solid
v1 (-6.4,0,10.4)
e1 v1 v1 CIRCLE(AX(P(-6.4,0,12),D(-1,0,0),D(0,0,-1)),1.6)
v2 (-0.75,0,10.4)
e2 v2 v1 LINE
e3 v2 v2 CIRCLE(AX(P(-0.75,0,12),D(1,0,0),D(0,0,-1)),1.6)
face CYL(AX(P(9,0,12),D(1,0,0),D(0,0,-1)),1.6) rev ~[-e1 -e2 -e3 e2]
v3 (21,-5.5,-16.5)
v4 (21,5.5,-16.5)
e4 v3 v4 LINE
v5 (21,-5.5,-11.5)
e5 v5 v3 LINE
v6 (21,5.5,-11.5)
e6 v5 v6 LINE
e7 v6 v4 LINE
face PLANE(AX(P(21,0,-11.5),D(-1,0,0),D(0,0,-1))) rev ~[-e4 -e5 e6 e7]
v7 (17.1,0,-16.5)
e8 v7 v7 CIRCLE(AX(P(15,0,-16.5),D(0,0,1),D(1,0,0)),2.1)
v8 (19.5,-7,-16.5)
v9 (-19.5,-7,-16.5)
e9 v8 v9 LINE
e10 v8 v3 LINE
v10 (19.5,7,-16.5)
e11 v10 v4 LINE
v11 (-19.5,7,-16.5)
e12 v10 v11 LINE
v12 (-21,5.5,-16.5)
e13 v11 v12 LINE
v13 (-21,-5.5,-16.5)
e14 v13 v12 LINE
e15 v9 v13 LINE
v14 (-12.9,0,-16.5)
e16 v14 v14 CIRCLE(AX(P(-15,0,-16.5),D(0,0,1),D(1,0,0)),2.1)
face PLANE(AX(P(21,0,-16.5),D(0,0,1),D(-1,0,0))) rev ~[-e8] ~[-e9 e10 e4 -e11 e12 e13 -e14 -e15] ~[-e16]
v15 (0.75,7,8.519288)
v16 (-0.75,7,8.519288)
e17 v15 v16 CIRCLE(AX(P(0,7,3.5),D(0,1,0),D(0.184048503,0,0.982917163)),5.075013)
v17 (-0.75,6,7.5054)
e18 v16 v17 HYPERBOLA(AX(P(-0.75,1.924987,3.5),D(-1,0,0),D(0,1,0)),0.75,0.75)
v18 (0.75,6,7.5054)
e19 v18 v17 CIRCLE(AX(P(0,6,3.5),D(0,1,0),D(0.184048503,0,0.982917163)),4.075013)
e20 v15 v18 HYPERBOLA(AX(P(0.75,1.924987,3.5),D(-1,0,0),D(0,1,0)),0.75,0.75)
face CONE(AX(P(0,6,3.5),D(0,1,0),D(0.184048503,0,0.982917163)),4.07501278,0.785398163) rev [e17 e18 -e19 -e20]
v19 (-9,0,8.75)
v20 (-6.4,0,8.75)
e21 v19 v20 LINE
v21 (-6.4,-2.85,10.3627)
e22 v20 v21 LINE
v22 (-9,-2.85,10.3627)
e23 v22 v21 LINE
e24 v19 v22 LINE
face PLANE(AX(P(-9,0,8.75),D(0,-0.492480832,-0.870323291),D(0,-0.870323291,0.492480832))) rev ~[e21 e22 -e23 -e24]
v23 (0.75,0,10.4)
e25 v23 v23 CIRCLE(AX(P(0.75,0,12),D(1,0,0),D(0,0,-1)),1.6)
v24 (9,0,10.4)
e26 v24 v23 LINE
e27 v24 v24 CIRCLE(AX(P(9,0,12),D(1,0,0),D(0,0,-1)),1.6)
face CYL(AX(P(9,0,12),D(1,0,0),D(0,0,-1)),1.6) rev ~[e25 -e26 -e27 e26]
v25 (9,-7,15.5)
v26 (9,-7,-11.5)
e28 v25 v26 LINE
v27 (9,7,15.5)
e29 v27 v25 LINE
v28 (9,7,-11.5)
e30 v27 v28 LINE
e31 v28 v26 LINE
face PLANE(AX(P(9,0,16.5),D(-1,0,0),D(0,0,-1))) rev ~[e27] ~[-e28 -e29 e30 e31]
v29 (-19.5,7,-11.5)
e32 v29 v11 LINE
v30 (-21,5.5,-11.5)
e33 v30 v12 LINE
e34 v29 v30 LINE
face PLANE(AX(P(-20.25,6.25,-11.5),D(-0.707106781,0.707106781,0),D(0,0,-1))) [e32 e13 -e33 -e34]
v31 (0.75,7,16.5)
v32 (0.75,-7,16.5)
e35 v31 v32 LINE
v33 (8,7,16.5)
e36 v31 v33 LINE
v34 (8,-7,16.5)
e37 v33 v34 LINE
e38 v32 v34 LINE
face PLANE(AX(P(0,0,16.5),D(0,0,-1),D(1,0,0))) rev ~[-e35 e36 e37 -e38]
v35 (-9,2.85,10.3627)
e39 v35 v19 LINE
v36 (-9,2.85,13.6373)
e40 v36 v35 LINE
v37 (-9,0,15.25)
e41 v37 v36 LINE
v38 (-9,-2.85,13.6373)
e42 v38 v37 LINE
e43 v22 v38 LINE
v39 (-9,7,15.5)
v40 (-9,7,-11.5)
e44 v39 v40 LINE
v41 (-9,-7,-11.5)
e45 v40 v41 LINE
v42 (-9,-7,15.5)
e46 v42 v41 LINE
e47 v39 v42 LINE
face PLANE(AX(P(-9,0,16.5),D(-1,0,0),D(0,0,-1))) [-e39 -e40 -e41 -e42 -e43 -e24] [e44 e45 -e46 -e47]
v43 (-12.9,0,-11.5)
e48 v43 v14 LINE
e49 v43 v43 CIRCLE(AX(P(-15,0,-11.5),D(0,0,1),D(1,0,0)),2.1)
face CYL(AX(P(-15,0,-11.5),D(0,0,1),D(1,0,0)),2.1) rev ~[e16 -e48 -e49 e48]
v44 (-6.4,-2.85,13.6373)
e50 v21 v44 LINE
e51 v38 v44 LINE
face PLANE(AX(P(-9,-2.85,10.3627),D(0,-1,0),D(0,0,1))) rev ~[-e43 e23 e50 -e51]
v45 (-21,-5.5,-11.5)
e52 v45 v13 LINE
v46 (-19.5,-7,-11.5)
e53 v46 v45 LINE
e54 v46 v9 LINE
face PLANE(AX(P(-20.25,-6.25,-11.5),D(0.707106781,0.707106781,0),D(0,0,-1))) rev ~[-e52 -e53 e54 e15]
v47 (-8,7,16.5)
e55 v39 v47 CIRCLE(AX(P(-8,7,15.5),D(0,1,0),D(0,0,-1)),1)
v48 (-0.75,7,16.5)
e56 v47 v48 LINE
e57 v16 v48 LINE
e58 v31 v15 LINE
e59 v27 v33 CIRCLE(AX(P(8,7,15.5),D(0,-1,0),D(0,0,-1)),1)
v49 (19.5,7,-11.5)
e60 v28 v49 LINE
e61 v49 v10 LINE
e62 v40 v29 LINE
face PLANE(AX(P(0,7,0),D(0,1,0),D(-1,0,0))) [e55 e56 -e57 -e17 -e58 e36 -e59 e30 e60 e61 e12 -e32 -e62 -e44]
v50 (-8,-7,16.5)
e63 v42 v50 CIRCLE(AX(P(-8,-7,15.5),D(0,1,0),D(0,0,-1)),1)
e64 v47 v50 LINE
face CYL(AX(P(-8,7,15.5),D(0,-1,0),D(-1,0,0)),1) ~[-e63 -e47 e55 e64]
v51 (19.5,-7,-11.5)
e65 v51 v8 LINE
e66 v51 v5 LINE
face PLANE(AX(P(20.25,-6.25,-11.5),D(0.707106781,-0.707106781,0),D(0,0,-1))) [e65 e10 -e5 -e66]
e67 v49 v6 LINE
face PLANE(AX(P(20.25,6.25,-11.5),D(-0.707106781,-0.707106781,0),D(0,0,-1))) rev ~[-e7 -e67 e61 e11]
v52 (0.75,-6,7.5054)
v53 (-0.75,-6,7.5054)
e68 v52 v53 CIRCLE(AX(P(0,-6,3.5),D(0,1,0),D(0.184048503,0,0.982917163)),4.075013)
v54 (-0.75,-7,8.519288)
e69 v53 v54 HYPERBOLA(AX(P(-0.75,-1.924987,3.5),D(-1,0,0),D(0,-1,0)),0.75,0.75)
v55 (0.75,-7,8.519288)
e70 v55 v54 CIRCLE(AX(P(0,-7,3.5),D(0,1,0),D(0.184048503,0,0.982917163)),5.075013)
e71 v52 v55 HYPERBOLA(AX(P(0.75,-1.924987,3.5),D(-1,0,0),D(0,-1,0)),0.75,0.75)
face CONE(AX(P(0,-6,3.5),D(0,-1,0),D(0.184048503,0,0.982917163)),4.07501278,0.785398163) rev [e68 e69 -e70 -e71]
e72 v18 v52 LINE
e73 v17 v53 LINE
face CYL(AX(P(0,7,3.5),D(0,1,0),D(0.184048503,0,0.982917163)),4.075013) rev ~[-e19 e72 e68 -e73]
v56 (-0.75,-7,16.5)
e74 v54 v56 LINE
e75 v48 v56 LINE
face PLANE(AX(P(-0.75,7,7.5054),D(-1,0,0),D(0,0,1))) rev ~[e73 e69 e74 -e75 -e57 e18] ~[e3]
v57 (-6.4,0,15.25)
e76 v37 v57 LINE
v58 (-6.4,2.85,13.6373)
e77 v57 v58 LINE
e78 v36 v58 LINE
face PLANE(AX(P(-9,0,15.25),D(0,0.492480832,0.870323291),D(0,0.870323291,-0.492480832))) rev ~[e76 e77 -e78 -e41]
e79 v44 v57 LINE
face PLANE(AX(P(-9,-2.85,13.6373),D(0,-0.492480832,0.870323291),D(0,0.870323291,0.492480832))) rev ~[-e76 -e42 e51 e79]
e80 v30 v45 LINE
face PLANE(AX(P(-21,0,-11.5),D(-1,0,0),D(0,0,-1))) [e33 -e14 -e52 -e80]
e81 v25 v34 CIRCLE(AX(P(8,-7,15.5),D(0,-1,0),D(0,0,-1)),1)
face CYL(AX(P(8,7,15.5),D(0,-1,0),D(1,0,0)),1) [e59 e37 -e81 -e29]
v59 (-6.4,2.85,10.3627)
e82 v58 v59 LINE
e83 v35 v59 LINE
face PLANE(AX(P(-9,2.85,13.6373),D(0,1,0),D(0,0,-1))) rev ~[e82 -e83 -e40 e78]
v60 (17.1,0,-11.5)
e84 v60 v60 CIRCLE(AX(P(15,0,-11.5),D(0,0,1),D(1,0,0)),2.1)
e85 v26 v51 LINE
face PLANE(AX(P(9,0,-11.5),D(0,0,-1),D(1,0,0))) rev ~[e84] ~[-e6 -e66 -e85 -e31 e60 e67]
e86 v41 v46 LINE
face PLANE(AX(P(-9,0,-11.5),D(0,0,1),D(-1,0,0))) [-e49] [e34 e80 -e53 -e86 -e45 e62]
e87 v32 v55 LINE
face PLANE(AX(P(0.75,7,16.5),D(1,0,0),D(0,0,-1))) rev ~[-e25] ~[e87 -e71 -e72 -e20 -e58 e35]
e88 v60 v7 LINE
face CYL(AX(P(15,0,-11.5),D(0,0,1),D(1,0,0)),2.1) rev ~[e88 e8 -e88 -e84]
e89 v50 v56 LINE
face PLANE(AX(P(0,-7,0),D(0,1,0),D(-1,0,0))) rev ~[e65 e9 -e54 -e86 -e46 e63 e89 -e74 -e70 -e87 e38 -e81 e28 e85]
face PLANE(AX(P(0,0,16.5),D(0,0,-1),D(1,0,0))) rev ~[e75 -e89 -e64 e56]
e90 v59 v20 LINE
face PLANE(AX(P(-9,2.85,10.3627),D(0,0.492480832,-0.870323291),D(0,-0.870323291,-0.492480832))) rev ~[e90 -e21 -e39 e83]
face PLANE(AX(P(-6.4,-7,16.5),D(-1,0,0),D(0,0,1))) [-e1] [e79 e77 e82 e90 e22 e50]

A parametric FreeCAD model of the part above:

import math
import FreeCAD as App
import Part
import Sketcher

V = App.Vector


def edges_at(feature, points):
    """Names of the edges that pass closest to the given points."""
    edges = feature.Shape.Edges
    near = lambda p: min(range(len(edges)), key=lambda i: edges[i].distToShape(Part.Vertex(*p))[0])
    return sorted({f"Edge{near(p) + 1}" for p in points})

doc = App.newDocument("Part")
params = doc.addObject("Spreadsheet::Sheet", "Params")
for row, (alias, value) in enumerate([
    ("sketch1_height", "5 mm"),
    ("pad1_length", "14 mm"),
    ("sketch2_width", "1.5 mm"),
    ("sketch3_diameter", "3.2 mm"),
    ("sketch4_diameter", "3.2 mm"),
    ("pocket3_length", "2.6 mm"),
    ("sketch5_diameter", "4.2 mm"),
    ("chamfer_size", "1.5 mm"),
    ("fillet_radius", "1 mm"),
    ("chamfer2_size", "1 mm"),
], start=1):
    params.set(f"A{row}", alias)
    params.set(f"B{row}", "=" + value)
    params.setAlias(f"B{row}", alias)

body = doc.addObject("PartDesign::Body", "Body")

sketch1 = body.newObject("Sketcher::SketchObject", "Sketch")
sketch1.AttachmentSupport = (doc.getObject("XZ_Plane"), [""])
sketch1.MapMode = "FlatFace"
sketch1.addGeometry([
    Part.LineSegment(V(9, -12, 0), V(21, -12, 0)),
    Part.LineSegment(V(21, -12, 0), V(21, -16, 0)),
    Part.LineSegment(V(21, -16, 0), V(-21, -16, 0)),
    Part.LineSegment(V(-21, -16, 0), V(-21, -12, 0)),
    Part.LineSegment(V(-21, -12, 0), V(-9, -12, 0)),
    Part.LineSegment(V(-9, -12, 0), V(-9, 16, 0)),
    Part.LineSegment(V(-9, 16, 0), V(9, 16, 0)),
    Part.LineSegment(V(9, 16, 0), V(9, -12, 0)),
], False)
sketch1.addConstraint([
    Sketcher.Constraint("Coincident", 0, 2, 1, 1),
    Sketcher.Constraint("Coincident", 1, 2, 2, 1),
    Sketcher.Constraint("Coincident", 2, 2, 3, 1),
    Sketcher.Constraint("Coincident", 3, 2, 4, 1),
    Sketcher.Constraint("Coincident", 4, 2, 5, 1),
    Sketcher.Constraint("Coincident", 5, 2, 6, 1),
    Sketcher.Constraint("Coincident", 6, 2, 7, 1),
    Sketcher.Constraint("Coincident", 7, 2, 0, 1),
    Sketcher.Constraint("Horizontal", 0),
    Sketcher.Constraint("Vertical", 1),
    Sketcher.Constraint("Horizontal", 2),
    Sketcher.Constraint("Vertical", 3),
    Sketcher.Constraint("Horizontal", 4),
    Sketcher.Constraint("Vertical", 5),
    Sketcher.Constraint("Horizontal", 6),
    Sketcher.Constraint("Vertical", 7),
    Sketcher.Constraint("Symmetric", 0, 2, 3, 2, -2),
    Sketcher.Constraint("Equal", 0, 4),
    Sketcher.Constraint("DistanceY", 1, 2, 1, 1, 5.0),
    Sketcher.Constraint("DistanceX", -1, 1, 0, 2, 21.0),
    Sketcher.Constraint("DistanceX", 4, 2, -1, 1, 9.0),
    Sketcher.Constraint("DistanceY", 2, 2, 5, 2, 33.0),
    Sketcher.Constraint("DistanceY", 0, 2, -1, 1, 11.5),
])
sketch1.setExpression("Constraints[18]", "Params.sketch1_height")
pad1 = body.newObject("PartDesign::Pad", "Pad")
pad1.Profile = sketch1
pad1.setExpression("Length", "Params.pad1_length")
pad1.Midplane = True

sketch2 = body.newObject("Sketcher::SketchObject", "Sketch001")
sketch2.AttachmentSupport = (doc.getObject("XZ_Plane"), [""])
sketch2.MapMode = "FlatFace"
sketch2.AttachmentOffset = App.Placement(V(0, 0, -7), App.Rotation())
sketch2.addGeometry([
    Part.LineSegment(V(0.8, 16.5, 0), V(0.8, 7.5, 0)),
    Part.ArcOfCircle(Part.Circle(V(0, 3.5, 0), V(0, 0, 1), 4.1), math.radians(101), math.radians(439)),
    Part.LineSegment(V(-0.8, 7.5, 0), V(-0.8, 16.5, 0)),
    Part.LineSegment(V(-0.8, 16.5, 0), V(0.8, 16.5, 0)),
], False)
sketch2.addConstraint([
    Sketcher.Constraint("Coincident", 0, 2, 1, 2),
    Sketcher.Constraint("Coincident", 1, 1, 2, 1),
    Sketcher.Constraint("Coincident", 2, 2, 3, 1),
    Sketcher.Constraint("Coincident", 3, 2, 0, 1),
    Sketcher.Constraint("Vertical", 0),
    Sketcher.Constraint("Vertical", 2),
    Sketcher.Constraint("Horizontal", 3),
    Sketcher.Constraint("Symmetric", 0, 2, 1, 1, -2),
    Sketcher.Constraint("DistanceX", 3, 1, 3, 2, 1.5),
    Sketcher.Constraint("Radius", 1, 4.075),
    Sketcher.Constraint("DistanceY", 1, 3, 2, 2, 13.0),
    Sketcher.Constraint("DistanceY", -1, 1, 1, 3, 3.5),
])
sketch2.setExpression("Constraints[8]", "Params.sketch2_width")
pocket1 = body.newObject("PartDesign::Pocket", "Pocket")
pocket1.Profile = sketch2
pocket1.Type = "ThroughAll"
pocket1.Reversed = True

sketch3 = body.newObject("Sketcher::SketchObject", "Sketch002")
sketch3.AttachmentSupport = (doc.getObject("YZ_Plane"), [""])
sketch3.MapMode = "FlatFace"
sketch3.AttachmentOffset = App.Placement(V(0, 0, 9), App.Rotation())
sketch3.addGeometry(Part.Circle(V(0, 12, 0), V(0, 0, 1), 1.6), False)
sketch3.addConstraint([
    Sketcher.Constraint("PointOnObject", 0, 3, -2),
    Sketcher.Constraint("Diameter", 0, 3.2),
    Sketcher.Constraint("DistanceY", -1, 1, 0, 3, 12.0),
])
sketch3.setExpression("Constraints[1]", "Params.sketch3_diameter")
pocket2 = body.newObject("PartDesign::Pocket", "Pocket001")
pocket2.Profile = sketch3
pocket2.Type = "ThroughAll"

sketch4 = body.newObject("Sketcher::SketchObject", "Sketch003")
sketch4.AttachmentSupport = (doc.getObject("YZ_Plane"), [""])
sketch4.MapMode = "FlatFace"
sketch4.AttachmentOffset = App.Placement(V(0, 0, -9), App.Rotation())
sketch4.addGeometry([
    Part.LineSegment(V(0, 8.8, 0), V(-2.9, 10.4, 0)),
    Part.LineSegment(V(-2.9, 10.4, 0), V(-2.9, 13.6, 0)),
    Part.LineSegment(V(-2.9, 13.6, 0), V(0, 15.2, 0)),
    Part.LineSegment(V(0, 15.2, 0), V(2.9, 13.6, 0)),
    Part.LineSegment(V(2.9, 13.6, 0), V(2.9, 10.4, 0)),
    Part.LineSegment(V(2.9, 10.4, 0), V(0, 8.8, 0)),
    Part.Circle(V(0, 12, 0), V(0, 0, 1), 1.6),
], False)
sketch4.addConstraint([
    Sketcher.Constraint("Coincident", 0, 2, 1, 1),
    Sketcher.Constraint("Coincident", 1, 2, 2, 1),
    Sketcher.Constraint("Coincident", 2, 2, 3, 1),
    Sketcher.Constraint("Coincident", 3, 2, 4, 1),
    Sketcher.Constraint("Coincident", 4, 2, 5, 1),
    Sketcher.Constraint("Coincident", 5, 2, 0, 1),
    Sketcher.Constraint("Vertical", 1),
    Sketcher.Constraint("Vertical", 4),
    Sketcher.Constraint("Symmetric", 1, 2, 3, 2, -2),
    Sketcher.Constraint("PointOnObject", 6, 3, -2),
    Sketcher.Constraint("PointOnObject", 2, 2, -2),
    Sketcher.Constraint("PointOnObject", 5, 2, -2),
    Sketcher.Constraint("Parallel", 0, 3),
    Sketcher.Constraint("Parallel", 2, 5),
    Sketcher.Constraint("Diameter", 6, 3.2),
    Sketcher.Constraint("DistanceX", 1, 2, 3, 2, 5.7),
    Sketcher.Constraint("DistanceY", -1, 1, 6, 3, 12.0),
    Sketcher.Constraint("DistanceY", -1, 1, 2, 2, 15.25),
    Sketcher.Constraint("DistanceY", -1, 1, 5, 2, 8.75),
    Sketcher.Constraint("DistanceY", 1, 1, 1, 2, 3.2746),
])
sketch4.setExpression("Constraints[14]", "Params.sketch4_diameter")
pocket3 = body.newObject("PartDesign::Pocket", "Pocket002")
pocket3.Profile = sketch4
pocket3.setExpression("Length", "Params.pocket3_length")
pocket3.Reversed = True

sketch5 = body.newObject("Sketcher::SketchObject", "Sketch004")
sketch5.AttachmentSupport = (doc.getObject("XY_Plane"), [""])
sketch5.MapMode = "FlatFace"
sketch5.AttachmentOffset = App.Placement(V(0, 0, -11.5), App.Rotation())
sketch5.addGeometry([
    Part.Circle(V(-15, 0, 0), V(0, 0, 1), 2.1),
    Part.Circle(V(15, 0, 0), V(0, 0, 1), 2.1),
], False)
sketch5.addConstraint([
    Sketcher.Constraint("Equal", 0, 1),
    Sketcher.Constraint("Symmetric", 0, 3, 1, 3, -1, 1),
    Sketcher.Constraint("PointOnObject", 0, 3, -1),
    Sketcher.Constraint("Diameter", 0, 4.2),
    Sketcher.Constraint("DistanceX", 0, 3, -1, 1, 15.0),
])
sketch5.setExpression("Constraints[3]", "Params.sketch5_diameter")
pocket4 = body.newObject("PartDesign::Pocket", "Pocket003")
pocket4.Profile = sketch5
pocket4.Type = "ThroughAll"
doc.recompute()

chamfer = body.newObject("PartDesign::Chamfer", "Chamfer")
chamfer.Base = (pocket4, edges_at(pocket4, [
    (-21, 7, -14),
    (-21, -7, -14),
    (21, 7, -14),
    (21, -7, -14),
]))
chamfer.setExpression("Size", "Params.chamfer_size")
doc.recompute()

fillet = body.newObject("PartDesign::Fillet", "Fillet")
fillet.Base = (chamfer, edges_at(chamfer, [(-9, 0, 16.5), (9, 0, 16.5)]))
fillet.setExpression("Radius", "Params.fillet_radius")
doc.recompute()

chamfer2 = body.newObject("PartDesign::Chamfer", "Chamfer001")
chamfer2.Base = (fillet, edges_at(fillet, [(0, -7, -0.575), (0, 7, -0.575)]))
chamfer2.setExpression("Size", "Params.chamfer2_size")

doc.recompute()
